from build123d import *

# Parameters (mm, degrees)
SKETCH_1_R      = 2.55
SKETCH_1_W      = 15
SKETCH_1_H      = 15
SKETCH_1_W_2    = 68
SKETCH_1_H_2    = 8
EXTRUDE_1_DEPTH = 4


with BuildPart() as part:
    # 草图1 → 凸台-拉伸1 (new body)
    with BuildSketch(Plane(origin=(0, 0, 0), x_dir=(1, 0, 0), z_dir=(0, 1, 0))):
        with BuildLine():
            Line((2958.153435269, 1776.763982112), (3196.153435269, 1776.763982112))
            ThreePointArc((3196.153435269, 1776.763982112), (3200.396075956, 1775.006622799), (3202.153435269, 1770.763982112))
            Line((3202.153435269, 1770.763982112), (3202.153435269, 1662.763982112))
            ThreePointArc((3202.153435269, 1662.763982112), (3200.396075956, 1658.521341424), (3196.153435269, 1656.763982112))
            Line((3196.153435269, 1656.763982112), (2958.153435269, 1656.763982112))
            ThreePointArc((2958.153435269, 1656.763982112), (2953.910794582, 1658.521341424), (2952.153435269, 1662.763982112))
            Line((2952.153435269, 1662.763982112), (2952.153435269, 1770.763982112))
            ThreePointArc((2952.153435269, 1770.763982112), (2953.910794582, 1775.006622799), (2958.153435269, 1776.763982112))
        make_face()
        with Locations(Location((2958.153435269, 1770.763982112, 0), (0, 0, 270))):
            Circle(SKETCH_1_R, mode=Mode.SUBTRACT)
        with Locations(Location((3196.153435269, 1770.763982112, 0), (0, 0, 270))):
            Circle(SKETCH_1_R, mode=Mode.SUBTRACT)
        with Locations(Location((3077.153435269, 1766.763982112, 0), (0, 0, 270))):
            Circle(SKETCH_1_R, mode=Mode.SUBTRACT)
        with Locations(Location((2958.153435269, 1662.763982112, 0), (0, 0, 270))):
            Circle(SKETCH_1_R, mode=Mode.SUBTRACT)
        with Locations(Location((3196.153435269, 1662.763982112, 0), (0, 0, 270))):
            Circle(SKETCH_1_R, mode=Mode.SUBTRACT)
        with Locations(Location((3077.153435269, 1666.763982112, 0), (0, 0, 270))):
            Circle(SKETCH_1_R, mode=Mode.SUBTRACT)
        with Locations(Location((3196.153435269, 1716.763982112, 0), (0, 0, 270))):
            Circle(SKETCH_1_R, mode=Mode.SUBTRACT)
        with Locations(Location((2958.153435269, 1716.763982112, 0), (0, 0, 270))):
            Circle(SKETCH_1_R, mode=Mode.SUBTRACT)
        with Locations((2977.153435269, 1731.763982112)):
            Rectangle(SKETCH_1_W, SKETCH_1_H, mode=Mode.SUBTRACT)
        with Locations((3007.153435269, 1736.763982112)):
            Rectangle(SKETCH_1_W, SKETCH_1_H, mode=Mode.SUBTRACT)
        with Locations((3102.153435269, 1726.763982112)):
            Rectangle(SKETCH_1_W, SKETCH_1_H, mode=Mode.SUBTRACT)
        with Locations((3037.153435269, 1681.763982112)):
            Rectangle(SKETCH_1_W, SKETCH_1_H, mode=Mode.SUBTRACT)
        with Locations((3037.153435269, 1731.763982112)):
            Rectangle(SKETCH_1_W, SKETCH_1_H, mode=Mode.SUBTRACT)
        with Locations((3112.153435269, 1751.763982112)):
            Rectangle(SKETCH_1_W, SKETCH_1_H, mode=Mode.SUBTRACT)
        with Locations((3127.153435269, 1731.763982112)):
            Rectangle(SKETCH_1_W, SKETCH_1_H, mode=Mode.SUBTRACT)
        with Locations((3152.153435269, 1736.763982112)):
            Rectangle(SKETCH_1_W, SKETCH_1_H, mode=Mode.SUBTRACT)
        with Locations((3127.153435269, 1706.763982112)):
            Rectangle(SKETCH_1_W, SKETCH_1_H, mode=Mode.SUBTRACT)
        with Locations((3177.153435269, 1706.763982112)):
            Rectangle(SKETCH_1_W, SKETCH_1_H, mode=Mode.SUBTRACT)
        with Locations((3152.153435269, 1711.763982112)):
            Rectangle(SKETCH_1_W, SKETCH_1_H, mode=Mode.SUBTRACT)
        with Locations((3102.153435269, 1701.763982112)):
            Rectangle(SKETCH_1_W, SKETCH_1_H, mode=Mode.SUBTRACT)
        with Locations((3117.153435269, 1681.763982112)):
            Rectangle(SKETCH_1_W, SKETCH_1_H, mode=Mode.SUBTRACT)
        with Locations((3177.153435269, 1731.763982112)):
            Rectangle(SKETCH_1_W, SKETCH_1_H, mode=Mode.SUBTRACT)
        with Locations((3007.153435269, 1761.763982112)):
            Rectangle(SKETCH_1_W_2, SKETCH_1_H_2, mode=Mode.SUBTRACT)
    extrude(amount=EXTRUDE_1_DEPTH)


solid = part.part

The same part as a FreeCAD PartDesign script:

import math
import FreeCAD as App
import Part
import Sketcher

V = App.Vector
Q = App.Units.Quantity


def add_polygon(sketch, points):
    """Adds a closed chain of lines whose ends are joined by coincident constraints."""
    first, n = sketch.GeometryCount, len(points)
    for a, b in zip(points, points[1:] + points[:1]):
        sketch.addGeometry(Part.LineSegment(App.Vector(*a, 0), App.Vector(*b, 0)), False)
    for i in range(n):
        sketch.addConstraint(Sketcher.Constraint("Coincident", first + i, 2, first + (i + 1) % n, 1))

doc = App.newDocument("Part")
params = doc.addObject("Spreadsheet::Sheet", "Params")
for row, (alias, value) in enumerate([
    ("sketch1_radius", "6 mm"),
    ("sketch1_diameter", "5.1 mm"),
    ("sketch1_width", "238 mm"),
    ("sketch1_width2", "15 mm"),
    ("sketch1_width3", "68 mm"),
    ("pad1_length", "4 mm"),
], start=1):
    params.set(f"A{row}", alias)
    params.set(f"B{row}", "=" + value)
    params.setAlias(f"B{row}", alias)

body = doc.addObject("PartDesign::Body", "Body")

# Sketch on XZ plane
sketch1 = body.newObject("Sketcher::SketchObject", "Sketch")
sketch1.AttachmentSupport = (doc.getObject("XZ_Plane"), [""])
sketch1.MapMode = "FlatFace"
sketch1.addGeometry(Part.LineSegment(V(3196.2, -1776.8, 0), V(2958.2, -1776.8, 0)), False)  # 0
sketch1.addGeometry(Part.ArcOfCircle(Part.Circle(V(2958.2, -1770.8, 0), V(0, 0, 1), 6), math.radians(180), math.radians(270)), False)  # 1
sketch1.addGeometry(Part.LineSegment(V(2952.2, -1770.8, 0), V(2952.2, -1662.8, 0)), False)  # 2
sketch1.addGeometry(Part.ArcOfCircle(Part.Circle(V(2958.2, -1662.8, 0), V(0, 0, 1), 6), math.radians(90), math.radians(180)), False)  # 3
sketch1.addGeometry(Part.LineSegment(V(2958.2, -1656.8, 0), V(3196.2, -1656.8, 0)), False)  # 4
sketch1.addGeometry(Part.ArcOfCircle(Part.Circle(V(3196.2, -1662.8, 0), V(0, 0, 1), 6), math.radians(0), math.radians(90)), False)  # 5
sketch1.addGeometry(Part.LineSegment(V(3202.2, -1662.8, 0), V(3202.2, -1770.8, 0)), False)  # 6
sketch1.addGeometry(Part.ArcOfCircle(Part.Circle(V(3196.2, -1770.8, 0), V(0, 0, 1), 6), math.radians(-90), math.radians(0)), False)  # 7
sketch1.addGeometry(Part.Circle(V(3196.2, -1662.8, 0), V(0, 0, 1), 2.5), False)  # 8
add_polygon(sketch1, [(3109.7, -1674.3), (3109.7, -1689.3), (3124.7, -1689.3), (3124.7, -1674.3)])  # lines 9-12
add_polygon(sketch1, [(3169.7, -1699.3), (3169.7, -1714.3), (3184.7, -1714.3), (3184.7, -1699.3)])  # lines 13-16
add_polygon(sketch1, [(3144.7, -1704.3), (3144.7, -1719.3), (3159.7, -1719.3), (3159.7, -1704.3)])  # lines 17-20
add_polygon(sketch1, [(3094.7, -1694.3), (3094.7, -1709.3), (3109.7, -1709.3), (3109.7, -1694.3)])  # lines 21-24
add_polygon(sketch1, [(3119.7, -1699.3), (3119.7, -1714.3), (3134.7, -1714.3), (3134.7, -1699.3)])  # lines 25-28
sketch1.addGeometry(Part.Circle(V(3077.2, -1666.8, 0), V(0, 0, 1), 2.5), False)  # 29
add_polygon(sketch1, [(3029.7, -1674.3), (3029.7, -1689.3), (3044.7, -1689.3), (3044.7, -1674.3)])  # lines 30-33
sketch1.addGeometry(Part.Circle(V(2958.2, -1662.8, 0), V(0, 0, 1), 2.5), False)  # 34
sketch1.addGeometry(Part.Circle(V(3196.2, -1716.8, 0), V(0, 0, 1), 2.5), False)  # 35
add_polygon(sketch1, [(3169.7, -1724.3), (3169.7, -1739.3), (3184.7, -1739.3), (3184.7, -1724.3)])  # lines 36-39
add_polygon(sketch1, [(3144.7, -1729.3), (3144.7, -1744.3), (3159.7, -1744.3), (3159.7, -1729.3)])  # lines 40-43
add_polygon(sketch1, [(3094.7, -1719.3), (3094.7, -1734.3), (3109.7, -1734.3), (3109.7, -1719.3)])  # lines 44-47
add_polygon(sketch1, [(3119.7, -1724.3), (3119.7, -1739.3), (3134.7, -1739.3), (3134.7, -1724.3)])  # lines 48-51
sketch1.addGeometry(Part.Circle(V(3196.2, -1770.8, 0), V(0, 0, 1), 2.5), False)  # 52
add_polygon(sketch1, [(3104.7, -1744.3), (3104.7, -1759.3), (3119.7, -1759.3), (3119.7, -1744.3)])  # lines 53-56
add_polygon(sketch1, [(3029.7, -1724.3), (3029.7, -1739.3), (3044.7, -1739.3), (3044.7, -1724.3)])  # lines 57-60
sketch1.addGeometry(Part.Circle(V(2958.2, -1716.8, 0), V(0, 0, 1), 2.5), False)  # 61
add_polygon(sketch1, [(2999.7, -1729.3), (2999.7, -1744.3), (3014.7, -1744.3), (3014.7, -1729.3)])  # lines 62-65
add_polygon(sketch1, [(2969.7, -1724.3), (2969.7, -1739.3), (2984.7, -1739.3), (2984.7, -1724.3)])  # lines 66-69
sketch1.addGeometry(Part.Circle(V(3077.2, -1766.8, 0), V(0, 0, 1), 2.5), False)  # 70
add_polygon(sketch1, [(2973.2, -1757.8), (2973.2, -1765.8), (3041.2, -1765.8), (3041.2, -1757.8)])  # lines 71-74
sketch1.addGeometry(Part.Circle(V(2958.2, -1770.8, 0), V(0, 0, 1), 2.5), False)  # 75
sketch1.addConstraint([
    Sketcher.Constraint("Tangent", 0, 2, 1, 2),
    Sketcher.Constraint("Tangent", 1, 1, 2, 1),
    Sketcher.Constraint("Tangent", 2, 2, 3, 2),
    Sketcher.Constraint("Tangent", 3, 1, 4, 1),
    Sketcher.Constraint("Tangent", 4, 2, 5, 2),
    Sketcher.Constraint("Tangent", 5, 1, 6, 1),
    Sketcher.Constraint("Tangent", 6, 2, 7, 2),
    Sketcher.Constraint("Tangent", 7, 1, 0, 1),
    Sketcher.Constraint("Horizontal", 0),
    Sketcher.Constraint("Vertical", 2),
    Sketcher.Constraint("Horizontal", 4),
    Sketcher.Constraint("Vertical", 6),
    Sketcher.Constraint("Vertical", 9),
    Sketcher.Constraint("Horizontal", 10),
    Sketcher.Constraint("Vertical", 11),
    Sketcher.Constraint("Horizontal", 12),
    Sketcher.Constraint("Vertical", 13),
    Sketcher.Constraint("Horizontal", 14),
    Sketcher.Constraint("Vertical", 15),
    Sketcher.Constraint("Horizontal", 16),
    Sketcher.Constraint("Vertical", 17),
    Sketcher.Constraint("Horizontal", 18),
    Sketcher.Constraint("Vertical", 19),
    Sketcher.Constraint("Horizontal", 20),
    Sketcher.Constraint("Vertical", 21),
    Sketcher.Constraint("Horizontal", 22),
    Sketcher.Constraint("Vertical", 23),
    Sketcher.Constraint("Horizontal", 24),
    Sketcher.Constraint("Vertical", 25),
    Sketcher.Constraint("Horizontal", 26),
    Sketcher.Constraint("Vertical", 27),
    Sketcher.Constraint("Horizontal", 28),
    Sketcher.Constraint("Vertical", 30),
    Sketcher.Constraint("Horizontal", 31),
    Sketcher.Constraint("Vertical", 32),
    Sketcher.Constraint("Horizontal", 33),
    Sketcher.Constraint("Vertical", 36),
    Sketcher.Constraint("Horizontal", 37),
    Sketcher.Constraint("Vertical", 38),
    Sketcher.Constraint("Horizontal", 39),
    Sketcher.Constraint("Vertical", 40),
    Sketcher.Constraint("Horizontal", 41),
    Sketcher.Constraint("Vertical", 42),
    Sketcher.Constraint("Horizontal", 43),
    Sketcher.Constraint("Vertical", 44),
    Sketcher.Constraint("Horizontal", 45),
    Sketcher.Constraint("Vertical", 46),
    Sketcher.Constraint("Horizontal", 47),
    Sketcher.Constraint("Vertical", 48),
    Sketcher.Constraint("Horizontal", 49),
    Sketcher.Constraint("Vertical", 50),
    Sketcher.Constraint("Horizontal", 51),
    Sketcher.Constraint("Vertical", 53),
    Sketcher.Constraint("Horizontal", 54),
    Sketcher.Constraint("Vertical", 55),
    Sketcher.Constraint("Horizontal", 56),
    Sketcher.Constraint("Vertical", 57),
    Sketcher.Constraint("Horizontal", 58),
    Sketcher.Constraint("Vertical", 59),
    Sketcher.Constraint("Horizontal", 60),
    Sketcher.Constraint("Vertical", 62),
    Sketcher.Constraint("Horizontal", 63),
    Sketcher.Constraint("Vertical", 64),
    Sketcher.Constraint("Horizontal", 65),
    Sketcher.Constraint("Vertical", 66),
    Sketcher.Constraint("Horizontal", 67),
    Sketcher.Constraint("Vertical", 68),
    Sketcher.Constraint("Horizontal", 69),
    Sketcher.Constraint("Vertical", 71),
    Sketcher.Constraint("Horizontal", 72),
    Sketcher.Constraint("Vertical", 73),
    Sketcher.Constraint("Horizontal", 74),
    Sketcher.Constraint("Coincident", 8, 3, 5, 3),
    Sketcher.Constraint("Coincident", 34, 3, 3, 3),
    Sketcher.Constraint("Coincident", 52, 3, 7, 3),
    Sketcher.Constraint("Coincident", 75, 3, 1, 3),
    Sketcher.Constraint("Equal", 1, 3),
    Sketcher.Constraint("Equal", 3, 5),
    Sketcher.Constraint("Equal", 5, 7),
    Sketcher.Constraint("Equal", 8, 29),
    Sketcher.Constraint("Equal", 29, 34),
    Sketcher.Constraint("Equal", 34, 35),
    Sketcher.Constraint("Equal", 35, 52),
    Sketcher.Constraint("Equal", 52, 61),
    Sketcher.Constraint("Equal", 61, 70),
    Sketcher.Constraint("Equal", 70, 75),
    Sketcher.Constraint("Horizontal", 35, 3, 61, 3),
    Sketcher.Constraint("Horizontal", 14, 2, 25, 2),
    Sketcher.Constraint("Horizontal", 16, 2, 27, 2),
    Sketcher.Constraint("Horizontal", 10, 2, 30, 2),
    Sketcher.Constraint("Horizontal", 12, 2, 32, 2),
    Sketcher.Constraint("Horizontal", 18, 2, 46, 2),
    Sketcher.Constraint("Horizontal", 37, 2, 48, 2),
    Sketcher.Constraint("Horizontal", 39, 2, 50, 2),
    Sketcher.Constraint("Horizontal", 41, 2, 55, 2),
    Sketcher.Constraint("Horizontal", 49, 2, 57, 2),
    Sketcher.Constraint("Horizontal", 51, 2, 59, 2),
    Sketcher.Constraint("Horizontal", 56, 2, 62, 2),
    Sketcher.Constraint("Horizontal", 43, 2, 64, 2),
    Sketcher.Constraint("Horizontal", 58, 2, 66, 2),
    Sketcher.Constraint("Horizontal", 60, 2, 68, 2),
    Sketcher.Constraint("Vertical", 8, 3, 35, 3),
    Sketcher.Constraint("Vertical", 34, 3, 61, 3),
    Sketcher.Constraint("Vertical", 29, 3, 70, 3),
    Sketcher.Constraint("Vertical", 12, 2, 22, 2),
    Sketcher.Constraint("Vertical", 16, 2, 36, 2),
    Sketcher.Constraint("Vertical", 15, 2, 37, 2),
    Sketcher.Constraint("Vertical", 20, 2, 40, 2),
    Sketcher.Constraint("Vertical", 19, 2, 41, 2),
    Sketcher.Constraint("Vertical", 24, 2, 44, 2),
    Sketcher.Constraint("Vertical", 23, 2, 45, 2),
    Sketcher.Constraint("Vertical", 28, 2, 48, 2),
    Sketcher.Constraint("Vertical", 27, 2, 49, 2),
    Sketcher.Constraint("Vertical", 51, 2, 54, 2),
    Sketcher.Constraint("Vertical", 33, 2, 57, 2),
    Sketcher.Constraint("Vertical", 32, 2, 58, 2),
    Sketcher.Constraint("Equal", 12, 14),
    Sketcher.Constraint("Equal", 16, 18),
    Sketcher.Constraint("Equal", 20, 22),
    Sketcher.Constraint("Equal", 24, 26),
    Sketcher.Constraint("Equal", 28, 31),
    Sketcher.Constraint("Equal", 51, 54),
    Sketcher.Constraint("Equal", 60, 63),
    Sketcher.Constraint("Equal", 65, 67),
    Sketcher.Constraint("Equal", 69, 9),
    Sketcher.Constraint("Equal", 11, 13),
    Sketcher.Constraint("Equal", 15, 17),
    Sketcher.Constraint("Equal", 19, 21),
    Sketcher.Constraint("Equal", 32, 36),
    Sketcher.Constraint("Equal", 38, 40),
    Sketcher.Constraint("Equal", 42, 44),
    Sketcher.Constraint("Equal", 50, 53),
    Sketcher.Constraint("Radius", 1, Q("6 mm")),
    Sketcher.Constraint("Diameter", 8, Q("5.1 mm")),
    Sketcher.Constraint("DistanceX", 0, 2, 0, 1, Q("238 mm")),
    Sketcher.Constraint("DistanceX", 10, 1, 10, 2, Q("15 mm")),
    Sketcher.Constraint("DistanceX", 72, 1, 72, 2, Q("68 mm")),
    Sketcher.Constraint("DistanceY", 2, 1, 2, 2, Q("108 mm")),
    Sketcher.Constraint("DistanceY", 71, 2, 71, 1, Q("8 mm")),
    Sketcher.Constraint("DistanceX", -1, 1, 1, 3, Q("2958.153435 mm")),
    Sketcher.Constraint("DistanceY", 1, 3, -1, 1, Q("1770.763982 mm")),
    Sketcher.Constraint("DistanceX", -1, 1, 29, 3, Q("3077.153435 mm")),
    Sketcher.Constraint("DistanceY", 29, 3, -1, 1, Q("1666.763982 mm")),
    Sketcher.Constraint("DistanceY", 35, 3, -1, 1, Q("1716.763982 mm")),
    Sketcher.Constraint("DistanceY", 70, 3, -1, 1, Q("1766.763982 mm")),
    Sketcher.Constraint("DistanceX", -1, 1, 9, 2, Q("3109.653435 mm")),
    Sketcher.Constraint("DistanceY", 9, 2, -1, 1, Q("1689.263982 mm")),
    Sketcher.Constraint("DistanceX", -1, 1, 13, 2, Q("3169.653435 mm")),
    Sketcher.Constraint("DistanceY", 13, 2, -1, 1, Q("1714.263982 mm")),
    Sketcher.Constraint("DistanceX", -1, 1, 17, 2, Q("3144.653435 mm")),
    Sketcher.Constraint("DistanceY", 17, 2, -1, 1, Q("1719.263982 mm")),
    Sketcher.Constraint("DistanceY", 21, 2, -1, 1, Q("1709.263982 mm")),
    Sketcher.Constraint("DistanceX", -1, 1, 25, 2, Q("3119.653435 mm")),
    Sketcher.Constraint("DistanceX", -1, 1, 30, 2, Q("3029.653435 mm")),
    Sketcher.Constraint("DistanceY", 36, 2, -1, 1, Q("1739.263982 mm")),
    Sketcher.Constraint("DistanceY", 40, 2, -1, 1, Q("1744.263982 mm")),
    Sketcher.Constraint("DistanceX", -1, 1, 62, 2, Q("2999.653435 mm")),
    Sketcher.Constraint("DistanceX", -1, 1, 66, 2, Q("2969.653435 mm")),
    Sketcher.Constraint("DistanceX", -1, 1, 71, 2, Q("2973.153435 mm")),
    Sketcher.Constraint("DistanceY", 71, 2, -1, 1, Q("1765.763982 mm")),
])
sketch1.setExpression("Constraints[192]", "Params.sketch1_radius")
sketch1.setExpression("Constraints[193]", "Params.sketch1_diameter")
sketch1.setExpression("Constraints[194]", "Params.sketch1_width")
sketch1.setExpression("Constraints[195]", "Params.sketch1_width2")
sketch1.setExpression("Constraints[196]", "Params.sketch1_width3")
pad1 = body.newObject("PartDesign::Pad", "Pad")
pad1.Profile = sketch1
pad1.setExpression("Length", "Params.pad1_length")
pad1.Reversed = True

doc.recompute()
